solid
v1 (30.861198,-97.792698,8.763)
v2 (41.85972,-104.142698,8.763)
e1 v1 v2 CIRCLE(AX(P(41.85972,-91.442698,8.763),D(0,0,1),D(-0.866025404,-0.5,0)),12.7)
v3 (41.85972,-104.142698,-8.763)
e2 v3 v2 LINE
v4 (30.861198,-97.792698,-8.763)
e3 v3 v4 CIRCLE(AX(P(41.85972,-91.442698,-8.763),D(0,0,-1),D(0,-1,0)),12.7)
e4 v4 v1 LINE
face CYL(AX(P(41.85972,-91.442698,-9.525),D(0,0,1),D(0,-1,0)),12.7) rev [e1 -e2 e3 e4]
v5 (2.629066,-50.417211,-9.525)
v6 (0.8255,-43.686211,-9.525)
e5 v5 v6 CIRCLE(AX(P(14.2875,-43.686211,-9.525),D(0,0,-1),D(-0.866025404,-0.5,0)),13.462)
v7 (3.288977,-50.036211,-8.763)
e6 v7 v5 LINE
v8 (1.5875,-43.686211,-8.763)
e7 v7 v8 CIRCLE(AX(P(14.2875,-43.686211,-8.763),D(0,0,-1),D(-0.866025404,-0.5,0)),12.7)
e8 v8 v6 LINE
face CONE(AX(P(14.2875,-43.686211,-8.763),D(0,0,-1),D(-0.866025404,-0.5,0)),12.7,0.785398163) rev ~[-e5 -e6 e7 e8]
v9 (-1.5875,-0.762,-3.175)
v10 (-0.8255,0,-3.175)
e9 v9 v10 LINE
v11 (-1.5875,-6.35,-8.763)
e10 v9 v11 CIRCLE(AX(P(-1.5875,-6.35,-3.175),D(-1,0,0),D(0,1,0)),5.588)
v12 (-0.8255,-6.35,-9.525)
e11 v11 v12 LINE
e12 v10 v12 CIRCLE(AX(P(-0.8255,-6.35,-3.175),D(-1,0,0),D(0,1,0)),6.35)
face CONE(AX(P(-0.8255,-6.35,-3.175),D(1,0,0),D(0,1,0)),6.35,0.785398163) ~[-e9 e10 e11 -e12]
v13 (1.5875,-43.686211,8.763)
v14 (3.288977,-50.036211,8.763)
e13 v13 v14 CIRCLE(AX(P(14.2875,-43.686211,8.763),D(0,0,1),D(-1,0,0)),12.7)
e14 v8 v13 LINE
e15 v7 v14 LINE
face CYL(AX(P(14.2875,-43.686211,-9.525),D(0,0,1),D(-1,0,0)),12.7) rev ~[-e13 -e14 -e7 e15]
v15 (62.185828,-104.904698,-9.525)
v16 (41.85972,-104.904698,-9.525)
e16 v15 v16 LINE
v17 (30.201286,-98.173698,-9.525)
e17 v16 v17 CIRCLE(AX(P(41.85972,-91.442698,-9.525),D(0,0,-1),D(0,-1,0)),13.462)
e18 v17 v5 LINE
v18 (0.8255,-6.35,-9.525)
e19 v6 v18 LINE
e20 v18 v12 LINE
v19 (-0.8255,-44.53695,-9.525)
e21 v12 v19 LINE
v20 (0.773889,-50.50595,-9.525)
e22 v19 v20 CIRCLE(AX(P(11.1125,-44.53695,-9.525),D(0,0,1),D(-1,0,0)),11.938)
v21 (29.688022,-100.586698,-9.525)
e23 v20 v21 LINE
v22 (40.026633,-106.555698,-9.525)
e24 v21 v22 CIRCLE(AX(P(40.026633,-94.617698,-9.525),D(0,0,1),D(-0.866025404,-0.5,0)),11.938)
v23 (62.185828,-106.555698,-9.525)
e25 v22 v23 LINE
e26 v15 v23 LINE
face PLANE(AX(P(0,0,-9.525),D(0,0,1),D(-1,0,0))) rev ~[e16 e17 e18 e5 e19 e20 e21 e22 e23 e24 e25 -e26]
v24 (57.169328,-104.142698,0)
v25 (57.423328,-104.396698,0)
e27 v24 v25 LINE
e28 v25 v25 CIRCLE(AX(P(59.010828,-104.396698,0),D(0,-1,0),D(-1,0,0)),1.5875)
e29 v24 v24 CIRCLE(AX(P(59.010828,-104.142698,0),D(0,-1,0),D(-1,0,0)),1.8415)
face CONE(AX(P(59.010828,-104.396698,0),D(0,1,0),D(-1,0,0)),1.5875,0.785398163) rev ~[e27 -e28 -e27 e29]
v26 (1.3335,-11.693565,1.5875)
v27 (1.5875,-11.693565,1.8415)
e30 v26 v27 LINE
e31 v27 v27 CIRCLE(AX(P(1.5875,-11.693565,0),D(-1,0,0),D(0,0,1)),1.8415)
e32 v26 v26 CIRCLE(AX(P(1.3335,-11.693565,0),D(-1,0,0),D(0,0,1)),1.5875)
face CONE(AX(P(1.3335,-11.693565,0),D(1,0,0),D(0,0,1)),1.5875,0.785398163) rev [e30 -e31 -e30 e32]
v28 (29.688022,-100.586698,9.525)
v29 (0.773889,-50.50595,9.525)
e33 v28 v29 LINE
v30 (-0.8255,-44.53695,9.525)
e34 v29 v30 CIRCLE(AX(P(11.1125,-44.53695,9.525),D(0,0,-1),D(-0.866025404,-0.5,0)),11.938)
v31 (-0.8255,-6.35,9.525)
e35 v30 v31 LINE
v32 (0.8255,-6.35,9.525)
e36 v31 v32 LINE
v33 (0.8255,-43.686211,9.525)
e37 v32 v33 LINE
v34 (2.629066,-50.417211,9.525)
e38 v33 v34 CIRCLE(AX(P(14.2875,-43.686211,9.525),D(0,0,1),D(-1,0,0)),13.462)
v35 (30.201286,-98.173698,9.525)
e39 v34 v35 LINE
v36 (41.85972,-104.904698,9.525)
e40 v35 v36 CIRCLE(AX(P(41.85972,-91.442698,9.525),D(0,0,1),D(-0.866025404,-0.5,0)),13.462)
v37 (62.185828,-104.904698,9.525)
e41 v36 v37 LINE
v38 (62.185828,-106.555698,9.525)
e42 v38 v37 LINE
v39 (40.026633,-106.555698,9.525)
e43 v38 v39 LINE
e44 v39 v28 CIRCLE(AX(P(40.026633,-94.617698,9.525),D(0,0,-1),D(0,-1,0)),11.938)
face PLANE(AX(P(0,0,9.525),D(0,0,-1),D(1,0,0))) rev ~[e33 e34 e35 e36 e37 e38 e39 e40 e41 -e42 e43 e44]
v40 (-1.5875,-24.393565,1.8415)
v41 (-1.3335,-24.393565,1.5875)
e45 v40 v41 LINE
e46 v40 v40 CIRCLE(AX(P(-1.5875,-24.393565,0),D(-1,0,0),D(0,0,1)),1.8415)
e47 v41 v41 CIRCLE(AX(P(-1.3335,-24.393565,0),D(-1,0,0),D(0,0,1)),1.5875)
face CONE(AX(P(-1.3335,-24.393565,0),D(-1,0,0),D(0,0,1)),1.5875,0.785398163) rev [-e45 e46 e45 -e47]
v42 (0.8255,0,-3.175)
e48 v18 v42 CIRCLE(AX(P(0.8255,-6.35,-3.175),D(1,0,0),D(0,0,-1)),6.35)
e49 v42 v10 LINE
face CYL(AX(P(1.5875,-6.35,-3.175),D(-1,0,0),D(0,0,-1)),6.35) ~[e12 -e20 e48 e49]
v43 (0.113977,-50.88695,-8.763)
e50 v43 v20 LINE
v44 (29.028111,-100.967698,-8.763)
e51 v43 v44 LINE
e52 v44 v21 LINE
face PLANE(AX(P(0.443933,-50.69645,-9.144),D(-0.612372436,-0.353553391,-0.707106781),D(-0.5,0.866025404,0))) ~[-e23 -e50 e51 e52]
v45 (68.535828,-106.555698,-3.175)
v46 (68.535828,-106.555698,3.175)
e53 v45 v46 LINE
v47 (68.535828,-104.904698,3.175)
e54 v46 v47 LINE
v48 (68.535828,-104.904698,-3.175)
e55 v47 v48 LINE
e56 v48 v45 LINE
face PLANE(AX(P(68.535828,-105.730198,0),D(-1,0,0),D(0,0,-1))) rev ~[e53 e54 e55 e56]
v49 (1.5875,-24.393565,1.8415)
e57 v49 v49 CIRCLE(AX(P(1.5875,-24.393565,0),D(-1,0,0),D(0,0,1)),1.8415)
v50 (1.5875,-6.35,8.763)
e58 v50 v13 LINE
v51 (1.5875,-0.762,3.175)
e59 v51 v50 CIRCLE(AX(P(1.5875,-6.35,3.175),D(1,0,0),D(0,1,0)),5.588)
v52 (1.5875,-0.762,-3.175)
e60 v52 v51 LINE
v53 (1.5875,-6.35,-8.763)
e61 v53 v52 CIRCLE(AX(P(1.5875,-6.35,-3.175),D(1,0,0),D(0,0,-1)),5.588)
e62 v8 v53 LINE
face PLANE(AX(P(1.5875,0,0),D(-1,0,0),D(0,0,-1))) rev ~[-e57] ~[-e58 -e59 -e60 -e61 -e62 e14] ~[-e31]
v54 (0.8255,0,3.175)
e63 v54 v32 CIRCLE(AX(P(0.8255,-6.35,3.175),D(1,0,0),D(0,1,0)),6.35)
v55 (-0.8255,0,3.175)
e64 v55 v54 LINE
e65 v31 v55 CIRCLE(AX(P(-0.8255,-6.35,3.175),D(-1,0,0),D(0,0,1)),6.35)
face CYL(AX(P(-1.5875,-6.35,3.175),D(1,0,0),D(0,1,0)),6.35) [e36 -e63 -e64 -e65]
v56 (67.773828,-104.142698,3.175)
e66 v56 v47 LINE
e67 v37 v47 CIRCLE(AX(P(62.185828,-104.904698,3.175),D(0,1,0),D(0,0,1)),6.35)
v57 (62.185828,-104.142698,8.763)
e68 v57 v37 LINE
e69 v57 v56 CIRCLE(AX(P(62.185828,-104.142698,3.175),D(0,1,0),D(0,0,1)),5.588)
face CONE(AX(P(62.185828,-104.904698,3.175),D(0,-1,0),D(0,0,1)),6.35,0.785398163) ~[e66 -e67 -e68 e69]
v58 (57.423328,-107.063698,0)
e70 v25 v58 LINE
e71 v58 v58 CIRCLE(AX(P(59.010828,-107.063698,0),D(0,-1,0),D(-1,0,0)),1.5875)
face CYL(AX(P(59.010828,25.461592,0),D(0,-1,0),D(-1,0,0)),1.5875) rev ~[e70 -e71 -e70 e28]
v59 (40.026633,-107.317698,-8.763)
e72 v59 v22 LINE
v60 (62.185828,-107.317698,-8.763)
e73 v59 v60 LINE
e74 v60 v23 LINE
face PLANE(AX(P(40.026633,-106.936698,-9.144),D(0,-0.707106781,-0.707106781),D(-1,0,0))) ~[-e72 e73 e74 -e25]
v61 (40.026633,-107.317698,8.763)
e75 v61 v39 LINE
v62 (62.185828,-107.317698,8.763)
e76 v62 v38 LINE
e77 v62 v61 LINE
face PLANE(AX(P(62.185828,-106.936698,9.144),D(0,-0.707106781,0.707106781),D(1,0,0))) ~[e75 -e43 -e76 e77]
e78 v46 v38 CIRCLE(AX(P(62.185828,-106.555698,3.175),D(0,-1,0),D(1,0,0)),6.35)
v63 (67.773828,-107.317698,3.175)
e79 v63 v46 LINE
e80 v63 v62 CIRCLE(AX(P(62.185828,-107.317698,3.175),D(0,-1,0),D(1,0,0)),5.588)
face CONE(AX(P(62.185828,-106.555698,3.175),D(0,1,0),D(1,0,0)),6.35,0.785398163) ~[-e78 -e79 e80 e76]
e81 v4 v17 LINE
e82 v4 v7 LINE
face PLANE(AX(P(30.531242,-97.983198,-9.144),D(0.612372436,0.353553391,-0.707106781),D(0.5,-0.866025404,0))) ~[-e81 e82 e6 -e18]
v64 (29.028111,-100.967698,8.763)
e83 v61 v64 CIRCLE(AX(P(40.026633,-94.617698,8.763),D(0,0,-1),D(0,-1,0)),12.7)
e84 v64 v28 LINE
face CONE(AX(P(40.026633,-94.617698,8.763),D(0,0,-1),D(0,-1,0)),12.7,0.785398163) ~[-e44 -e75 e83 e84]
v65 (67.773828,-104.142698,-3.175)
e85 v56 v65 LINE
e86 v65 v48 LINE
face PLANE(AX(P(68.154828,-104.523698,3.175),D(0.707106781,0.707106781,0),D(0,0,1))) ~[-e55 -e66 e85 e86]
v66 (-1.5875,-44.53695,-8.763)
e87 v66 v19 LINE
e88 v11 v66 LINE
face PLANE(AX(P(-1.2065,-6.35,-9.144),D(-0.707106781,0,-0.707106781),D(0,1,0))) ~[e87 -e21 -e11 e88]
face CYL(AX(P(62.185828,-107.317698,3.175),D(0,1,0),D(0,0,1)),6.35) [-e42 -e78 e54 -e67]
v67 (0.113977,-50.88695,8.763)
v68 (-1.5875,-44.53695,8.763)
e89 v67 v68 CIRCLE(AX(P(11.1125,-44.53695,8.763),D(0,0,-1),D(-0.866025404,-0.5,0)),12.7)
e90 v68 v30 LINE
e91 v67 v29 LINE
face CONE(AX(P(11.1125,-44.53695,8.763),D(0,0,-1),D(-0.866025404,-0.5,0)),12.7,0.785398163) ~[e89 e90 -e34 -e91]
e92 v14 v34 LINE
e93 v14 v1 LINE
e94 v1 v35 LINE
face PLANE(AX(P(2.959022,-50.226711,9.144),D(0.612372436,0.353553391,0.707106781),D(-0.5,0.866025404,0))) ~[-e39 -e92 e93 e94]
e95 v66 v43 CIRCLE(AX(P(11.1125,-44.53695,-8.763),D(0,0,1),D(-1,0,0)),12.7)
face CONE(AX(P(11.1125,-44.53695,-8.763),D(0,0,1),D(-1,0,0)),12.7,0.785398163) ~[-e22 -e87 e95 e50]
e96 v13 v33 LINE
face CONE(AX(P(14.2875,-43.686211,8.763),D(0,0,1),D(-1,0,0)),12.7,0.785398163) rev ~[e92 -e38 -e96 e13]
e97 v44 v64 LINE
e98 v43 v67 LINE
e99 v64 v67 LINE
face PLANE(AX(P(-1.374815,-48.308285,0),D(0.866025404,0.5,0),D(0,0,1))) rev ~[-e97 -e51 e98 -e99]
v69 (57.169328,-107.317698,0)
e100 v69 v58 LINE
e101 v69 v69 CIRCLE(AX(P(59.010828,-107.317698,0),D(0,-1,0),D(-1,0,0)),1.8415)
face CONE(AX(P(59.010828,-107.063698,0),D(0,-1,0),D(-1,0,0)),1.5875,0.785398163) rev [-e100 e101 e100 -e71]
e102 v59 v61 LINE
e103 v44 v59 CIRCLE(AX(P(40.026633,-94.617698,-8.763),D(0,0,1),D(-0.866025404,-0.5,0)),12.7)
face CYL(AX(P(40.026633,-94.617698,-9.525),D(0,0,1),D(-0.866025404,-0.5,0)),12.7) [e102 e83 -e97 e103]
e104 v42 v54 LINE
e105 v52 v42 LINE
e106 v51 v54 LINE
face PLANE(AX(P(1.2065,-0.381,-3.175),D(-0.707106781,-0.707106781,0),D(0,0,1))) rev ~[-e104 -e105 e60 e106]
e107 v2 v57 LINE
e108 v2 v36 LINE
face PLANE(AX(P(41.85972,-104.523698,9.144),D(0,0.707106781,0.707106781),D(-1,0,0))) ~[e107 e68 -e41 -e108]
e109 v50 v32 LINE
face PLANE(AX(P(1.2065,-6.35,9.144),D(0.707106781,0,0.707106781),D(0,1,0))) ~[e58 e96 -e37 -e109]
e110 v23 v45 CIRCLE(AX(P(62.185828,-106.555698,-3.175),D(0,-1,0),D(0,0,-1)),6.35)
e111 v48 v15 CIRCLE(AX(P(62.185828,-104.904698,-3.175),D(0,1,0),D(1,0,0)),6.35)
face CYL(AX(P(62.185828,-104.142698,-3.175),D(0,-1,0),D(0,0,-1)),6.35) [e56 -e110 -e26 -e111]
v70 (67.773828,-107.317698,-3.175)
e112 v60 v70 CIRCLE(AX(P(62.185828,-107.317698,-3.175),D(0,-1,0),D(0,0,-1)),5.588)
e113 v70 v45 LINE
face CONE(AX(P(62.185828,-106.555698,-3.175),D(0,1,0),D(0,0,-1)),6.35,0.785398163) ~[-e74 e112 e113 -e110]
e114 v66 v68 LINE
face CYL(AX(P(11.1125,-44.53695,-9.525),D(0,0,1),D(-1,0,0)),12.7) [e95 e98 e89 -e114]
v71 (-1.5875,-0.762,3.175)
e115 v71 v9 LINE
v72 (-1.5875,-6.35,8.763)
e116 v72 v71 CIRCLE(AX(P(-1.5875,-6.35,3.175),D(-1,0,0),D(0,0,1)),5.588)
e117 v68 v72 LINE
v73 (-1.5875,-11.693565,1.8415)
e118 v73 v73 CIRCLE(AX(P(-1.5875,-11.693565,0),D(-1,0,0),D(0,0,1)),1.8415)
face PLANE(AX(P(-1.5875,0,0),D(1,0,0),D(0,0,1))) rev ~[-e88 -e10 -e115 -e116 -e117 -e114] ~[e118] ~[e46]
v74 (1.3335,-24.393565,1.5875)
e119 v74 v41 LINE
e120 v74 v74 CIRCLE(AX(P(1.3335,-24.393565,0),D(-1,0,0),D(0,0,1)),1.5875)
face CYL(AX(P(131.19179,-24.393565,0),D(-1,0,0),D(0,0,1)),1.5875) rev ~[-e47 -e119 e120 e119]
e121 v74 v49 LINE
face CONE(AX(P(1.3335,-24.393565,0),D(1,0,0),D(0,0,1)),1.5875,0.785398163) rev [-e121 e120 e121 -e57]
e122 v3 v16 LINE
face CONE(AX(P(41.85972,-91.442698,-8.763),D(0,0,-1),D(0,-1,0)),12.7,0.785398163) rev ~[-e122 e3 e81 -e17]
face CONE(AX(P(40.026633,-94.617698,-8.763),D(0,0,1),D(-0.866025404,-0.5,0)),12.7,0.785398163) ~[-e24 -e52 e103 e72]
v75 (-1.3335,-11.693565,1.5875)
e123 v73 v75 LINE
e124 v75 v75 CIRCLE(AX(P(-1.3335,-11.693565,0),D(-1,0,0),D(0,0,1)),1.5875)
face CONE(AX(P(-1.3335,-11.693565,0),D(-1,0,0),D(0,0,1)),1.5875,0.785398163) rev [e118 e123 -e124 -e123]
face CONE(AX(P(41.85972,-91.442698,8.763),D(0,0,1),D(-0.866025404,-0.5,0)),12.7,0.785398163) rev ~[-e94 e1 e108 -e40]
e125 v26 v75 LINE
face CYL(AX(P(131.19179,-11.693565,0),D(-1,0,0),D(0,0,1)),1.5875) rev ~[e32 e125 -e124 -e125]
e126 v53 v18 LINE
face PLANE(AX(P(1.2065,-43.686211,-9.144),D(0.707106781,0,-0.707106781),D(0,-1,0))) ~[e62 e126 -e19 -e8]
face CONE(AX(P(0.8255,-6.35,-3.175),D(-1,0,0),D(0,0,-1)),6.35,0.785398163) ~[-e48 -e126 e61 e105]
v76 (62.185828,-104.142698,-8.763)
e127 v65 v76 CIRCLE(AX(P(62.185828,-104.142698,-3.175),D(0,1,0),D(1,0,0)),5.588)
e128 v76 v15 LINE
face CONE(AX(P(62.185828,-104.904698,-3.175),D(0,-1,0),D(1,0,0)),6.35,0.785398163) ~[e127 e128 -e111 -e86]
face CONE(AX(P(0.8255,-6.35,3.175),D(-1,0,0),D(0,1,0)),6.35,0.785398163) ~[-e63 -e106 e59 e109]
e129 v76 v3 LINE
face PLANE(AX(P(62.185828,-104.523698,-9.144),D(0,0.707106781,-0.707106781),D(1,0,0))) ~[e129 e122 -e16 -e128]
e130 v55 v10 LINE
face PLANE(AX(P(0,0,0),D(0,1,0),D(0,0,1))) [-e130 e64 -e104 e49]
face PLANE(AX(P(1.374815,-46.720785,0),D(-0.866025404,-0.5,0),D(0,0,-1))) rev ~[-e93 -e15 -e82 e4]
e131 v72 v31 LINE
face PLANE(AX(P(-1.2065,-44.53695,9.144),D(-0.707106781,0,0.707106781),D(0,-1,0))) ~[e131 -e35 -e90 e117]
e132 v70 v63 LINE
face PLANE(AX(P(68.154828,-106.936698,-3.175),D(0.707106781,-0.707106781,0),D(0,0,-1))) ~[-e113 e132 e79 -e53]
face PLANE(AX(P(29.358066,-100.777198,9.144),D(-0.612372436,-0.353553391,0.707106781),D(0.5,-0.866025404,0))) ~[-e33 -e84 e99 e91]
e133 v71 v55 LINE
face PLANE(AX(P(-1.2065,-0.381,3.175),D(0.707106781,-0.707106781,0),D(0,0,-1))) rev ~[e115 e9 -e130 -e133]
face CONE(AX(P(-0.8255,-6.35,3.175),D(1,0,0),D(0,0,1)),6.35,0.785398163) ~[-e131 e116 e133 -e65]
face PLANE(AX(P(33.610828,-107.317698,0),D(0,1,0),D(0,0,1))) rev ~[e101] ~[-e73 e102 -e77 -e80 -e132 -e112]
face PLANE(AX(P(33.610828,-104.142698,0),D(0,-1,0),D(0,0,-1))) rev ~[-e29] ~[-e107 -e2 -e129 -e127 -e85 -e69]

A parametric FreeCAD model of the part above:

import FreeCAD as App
import Part
import Sketcher
Q = App.Units.Quantity


def edges_at(feature, points):
    """Names of the edges that pass closest to the given points."""
    edges = feature.Shape.Edges
    near = lambda p: min(range(len(edges)), key=lambda i: edges[i].distToShape(Part.Vertex(*p))[0])
    return sorted({f"Edge{near(p) + 1}" for p in points})


def add_polygon(sketch, points):
    """Adds a closed chain of lines whose ends are joined by coincident constraints."""
    first, n = sketch.GeometryCount, len(points)
    for a, b in zip(points, points[1:] + points[:1]):
        sketch.addGeometry(Part.LineSegment(App.Vector(*a, 0), App.Vector(*b, 0)), False)
    for i in range(n):
        sketch.addConstraint(Sketcher.Constraint("Coincident", first + i, 2, first + (i + 1) % n, 1))

doc = App.newDocument("Part")
body = doc.addObject("PartDesign::Body", "Body")

sketch1 = body.newObject("Sketcher::SketchObject", "Sketch")
sketch1.AttachmentSupport = (doc.getObject("XZ_Plane"), [""])
sketch1.MapMode = "FlatFace"
add_polygon(sketch1, [(-1.5875, -9.525), (-1.5875, 9.525), (1.5875, 9.525), (1.5875, -9.525)])
sketch1.addConstraint([
    Sketcher.Constraint("Vertical", 0),
    Sketcher.Constraint("Horizontal", 1),
    Sketcher.Constraint("Vertical", 2),
    Sketcher.Constraint("Horizontal", 3),
    Sketcher.Constraint("Symmetric", 0, 2, 2, 2, -1, 1),
    Sketcher.Constraint("DistanceY", 0, 1, 0, 2, Q("0.75 in")),
    Sketcher.Constraint("DistanceX", 1, 1, 1, 2, Q("0.125 in")),
])

sketch2 = body.newObject("Sketcher::SketchObject", "Sketch001")
sketch2.AttachmentSupport = (doc.getObject("XY_Plane"), [""])
sketch2.MapMode = "FlatFace"
sketch2.addGeometry([
    Part.LineSegment(App.Vector(0, 0, 0), App.Vector(0, -47.514535, 0)),
    Part.LineSegment(App.Vector(0, -47.514535, 0), App.Vector(33.610828, -105.730198, 0)),
    Part.LineSegment(App.Vector(33.610828, -105.730198, 0), App.Vector(68.535828, -105.730198, 0)),
], False)
sketch2.addConstraint([
    Sketcher.Constraint("Coincident", 0, 2, 1, 1),
    Sketcher.Constraint("Coincident", 1, 2, 2, 1),
    Sketcher.Constraint("Vertical", 0),
    Sketcher.Constraint("Horizontal", 2),
    Sketcher.Constraint("Coincident", 0, 1, -1, 1),
    Sketcher.Constraint("Angle", 1, Q("-60 deg")),
    Sketcher.Constraint("DistanceX", 2, 1, 2, 2, Q("1.375 in")),
    Sketcher.Constraint("DistanceY", 0, 2, 0, 1, Q("47.514535 mm")),
    Sketcher.Constraint("DistanceX", -1, 1, 1, 2, Q("33.610828 mm")),
])
doc.recompute()

additivepipe = body.newObject("PartDesign::AdditivePipe", "AdditivePipe")
additivepipe.Profile = sketch1
additivepipe.Spine = (sketch2, ["Edge1", "Edge2", "Edge3"])
additivepipe.Transition = "Right corner"

sketch3 = body.newObject("Sketcher::SketchObject", "Sketch002")
sketch3.AttachmentSupport = (doc.getObject("YZ_Plane"), [""])
sketch3.MapMode = "FlatFace"
sketch3.AttachmentOffset = App.Placement(App.Vector(0, 0, 0.0625 * 25.4), App.Rotation())
sketch3.addGeometry([
    Part.Circle(App.Vector(-11.693565, 0, 0), App.Vector(0, 0, 1), 1.5875),
    Part.Circle(App.Vector(-24.393565, 0, 0), App.Vector(0, 0, 1), 1.5875),
], False)
sketch3.addConstraint([
    Sketcher.Constraint("Equal", 0, 1),
    Sketcher.Constraint("PointOnObject", 0, 3, -1),
    Sketcher.Constraint("PointOnObject", 1, 3, -1),
    Sketcher.Constraint("Diameter", 0, Q("0.125 in")),
    Sketcher.Constraint("DistanceX", 1, 3, 0, 3, Q("0.5 in")),
    Sketcher.Constraint("DistanceX", 0, 3, -1, 1, Q("11.693565 mm")),
])
doc.recompute()
hole = body.newObject("PartDesign::Hole", "Hole")
hole.Profile = sketch3
hole.ThreadType = "None"
hole.Diameter = Q("0.125 in")
hole.DepthType = "ThroughAll"

sketch4 = body.newObject("Sketcher::SketchObject", "Sketch003")
sketch4.AttachmentSupport = (doc.getObject("XZ_Plane"), [""])
sketch4.MapMode = "FlatFace"
sketch4.AttachmentOffset = App.Placement(App.Vector(0, 0, 104.142698), App.Rotation())
sketch4.addGeometry(Part.Circle(App.Vector(59.010828, 0, 0), App.Vector(0, 0, 1), 1.5875), False)
sketch4.addConstraint([
    Sketcher.Constraint("PointOnObject", 0, 3, -1),
    Sketcher.Constraint("Diameter", 0, Q("0.125 in")),
    Sketcher.Constraint("DistanceX", -1, 1, 0, 3, Q("59.010828 mm")),
])
doc.recompute()
hole2 = body.newObject("PartDesign::Hole", "Hole001")
hole2.Profile = sketch4
hole2.ThreadType = "None"
hole2.Diameter = Q("0.125 in")
hole2.DepthType = "ThroughAll"
hole2.Reversed = True
doc.recompute()

fillet = body.newObject("PartDesign::Fillet", "Fillet")
fillet.Base = (hole2, edges_at(hole2, [
    (1.587, -47.089, 0),
    (-1.587, -47.94, 0),
    (32.694, -107.318, 0),
    (34.527, -104.143, 0),
]))
fillet.Radius = Q("0.5 in")
doc.recompute()

fillet2 = body.newObject("PartDesign::Fillet", "Fillet001")
fillet2.Base = (fillet, edges_at(fillet, [
    (0, 0, -9.525),
    (0, 0, 9.525),
    (68.536, -105.73, -9.525),
    (68.536, -105.73, 9.525),
]))
fillet2.Radius = Q("0.25 in")
doc.recompute()

chamfer = body.newObject("PartDesign::Chamfer", "Chamfer")
chamfer.Base = (fillet2, edges_at(fillet2, [
    (68.536, -107.318, 0),
    (66.676, -107.318, 7.665),
    (66.676, -107.318, -7.665),
    (68.536, -104.143, 0),
    (66.676, -104.143, 7.665),
    (66.676, -104.143, -7.665),
    (1.587, 0, 0),
    (-1.587, 0, 0),
    (-1.587, -25.443, -9.525),
    (-1.587, -25.443, 9.525),
    (-1.587, -1.86, 7.665),
    (-1.587, -1.86, -7.665),
    (1.587, -25.018, -9.525),
    (1.587, -25.018, 9.525),
    (1.587, -1.86, 7.665),
    (1.587, -1.86, -7.665),
    (51.106, -107.318, -9.525),
    (51.106, -107.318, 9.525),
    (52.023, -104.143, -9.525),
    (33.677, -105.616, -9.525),
    (14.571, -75.927, -9.525),
    (17.075, -73.914, -9.525),
    (-1.155, -47.824, -9.525),
    (33.677, -105.616, -9.525),
    (14.571, -75.927, 9.525),
    (17.075, -73.914, 9.525),
    (-1.155, -47.824, 9.525),
    (33.677, -105.616, 9.525),
    (52.023, -104.143, 9.525),
    (33.677, -105.616, 9.525),
    (-1.155, -47.824, -9.525),
    (-1.155, -47.824, 9.525),
    (35.51, -102.441, 9.525),
    (35.51, -102.441, 9.525),
    (35.51, -102.441, -9.525),
    (35.51, -102.441, -9.525),
    (2.02, -46.973, 9.525),
    (2.02, -46.973, 9.525),
    (2.02, -46.973, -9.525),
    (2.02, -46.973, -9.525),
]))
chamfer.Size = Q("0.03 in")
doc.recompute()

chamfer2 = body.newObject("PartDesign::Chamfer", "Chamfer001")
chamfer2.Base = (chamfer, edges_at(chamfer, [
    (1.587, -24.394, -1.587),
    (-1.587, -24.394, -1.587),
    (1.587, -11.694, -1.587),
    (-1.587, -11.694, -1.587),
    (60.598, -104.143, 0),
    (60.598, -107.318, 0),
]))
chamfer2.Size = Q("0.01 in")

doc.recompute()
